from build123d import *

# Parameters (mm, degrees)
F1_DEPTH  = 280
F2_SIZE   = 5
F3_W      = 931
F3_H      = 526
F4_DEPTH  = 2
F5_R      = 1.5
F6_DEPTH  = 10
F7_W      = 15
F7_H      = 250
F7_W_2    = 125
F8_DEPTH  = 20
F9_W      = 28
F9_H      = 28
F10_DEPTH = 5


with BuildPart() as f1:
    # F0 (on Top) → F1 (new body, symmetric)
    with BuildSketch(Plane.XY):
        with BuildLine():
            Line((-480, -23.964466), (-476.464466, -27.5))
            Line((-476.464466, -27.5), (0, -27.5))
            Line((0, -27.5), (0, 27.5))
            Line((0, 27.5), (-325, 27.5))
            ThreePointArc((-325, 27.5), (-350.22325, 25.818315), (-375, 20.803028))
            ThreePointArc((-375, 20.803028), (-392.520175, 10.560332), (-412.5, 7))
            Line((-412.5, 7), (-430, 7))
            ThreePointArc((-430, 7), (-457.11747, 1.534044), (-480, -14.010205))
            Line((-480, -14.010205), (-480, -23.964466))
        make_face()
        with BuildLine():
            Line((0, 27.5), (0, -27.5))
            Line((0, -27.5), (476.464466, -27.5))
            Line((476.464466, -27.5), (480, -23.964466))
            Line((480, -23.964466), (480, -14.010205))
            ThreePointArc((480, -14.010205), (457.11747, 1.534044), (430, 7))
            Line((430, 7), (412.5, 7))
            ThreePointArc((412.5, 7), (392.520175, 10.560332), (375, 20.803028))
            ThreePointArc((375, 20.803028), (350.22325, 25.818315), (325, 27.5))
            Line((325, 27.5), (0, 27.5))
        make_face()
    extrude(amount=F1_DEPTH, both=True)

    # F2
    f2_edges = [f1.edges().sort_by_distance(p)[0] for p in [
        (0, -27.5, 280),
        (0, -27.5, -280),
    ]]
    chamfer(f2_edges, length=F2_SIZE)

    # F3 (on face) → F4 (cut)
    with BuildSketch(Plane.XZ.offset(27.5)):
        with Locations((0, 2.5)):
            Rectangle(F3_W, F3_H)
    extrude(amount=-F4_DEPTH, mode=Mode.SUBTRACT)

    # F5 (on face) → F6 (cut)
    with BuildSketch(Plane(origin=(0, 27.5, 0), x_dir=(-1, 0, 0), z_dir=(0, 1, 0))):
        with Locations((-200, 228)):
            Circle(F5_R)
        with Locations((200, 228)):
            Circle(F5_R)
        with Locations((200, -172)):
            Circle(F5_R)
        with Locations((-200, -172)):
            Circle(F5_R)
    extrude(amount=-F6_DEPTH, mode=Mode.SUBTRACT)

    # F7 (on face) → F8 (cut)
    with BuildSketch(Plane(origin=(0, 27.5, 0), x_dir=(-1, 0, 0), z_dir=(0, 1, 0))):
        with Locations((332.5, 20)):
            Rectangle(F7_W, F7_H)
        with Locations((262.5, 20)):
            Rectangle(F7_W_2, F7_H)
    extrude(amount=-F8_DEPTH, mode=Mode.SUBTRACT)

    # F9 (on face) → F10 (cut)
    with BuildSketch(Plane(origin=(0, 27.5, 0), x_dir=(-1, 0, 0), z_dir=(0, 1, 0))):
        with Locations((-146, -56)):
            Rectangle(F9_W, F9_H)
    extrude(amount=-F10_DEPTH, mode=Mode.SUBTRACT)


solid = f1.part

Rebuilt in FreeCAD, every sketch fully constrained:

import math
import FreeCAD as App
import Part
import Sketcher

V = App.Vector
Q = App.Units.Quantity


def edges_at(feature, points):
    """Names of the edges that pass closest to the given points."""
    edges = feature.Shape.Edges
    near = lambda p: min(range(len(edges)), key=lambda i: edges[i].distToShape(Part.Vertex(*p))[0])
    return sorted({f"Edge{near(p) + 1}" for p in points})

doc = App.newDocument("Part")
body = doc.addObject("PartDesign::Body", "Body")

# Sketch on XY plane
sketch1 = doc.addObject("Sketcher::SketchObject", "Sketch")
body.addObject(sketch1)
sketch1.AttachmentSupport = (doc.XY_Plane, [""])
sketch1.MapMode = "FlatFace"
sketch1.addGeometry(Part.LineSegment(V(-480, -23.964466, 0), V(-476.464466, -27.5, 0)), False)
sketch1.addGeometry(Part.LineSegment(V(-476.464466, -27.5, 0), V(476.464466, -27.5, 0)), False)
sketch1.addGeometry(Part.LineSegment(V(476.464466, -27.5, 0), V(480, -23.964466, 0)), False)
sketch1.addGeometry(Part.LineSegment(V(480, -23.964466, 0), V(480, -14.010205, 0)), False)
sketch1.addGeometry(Part.ArcOfCircle(Part.Circle(V(430, -62.999999, 0), V(0, 0, 1), 69.999999), math.radians(44.415309), math.radians(90)), False)
sketch1.addGeometry(Part.LineSegment(V(430, 7, 0), V(412.5, 7, 0)), False)
sketch1.addGeometry(Part.ArcOfCircle(Part.Circle(V(412.499999, 64.84142, 0), V(0, 0, 1), 57.84142), math.radians(-130.415381), math.radians(-89.999999)), False)
sketch1.addGeometry(Part.ArcOfCircle(Part.Circle(V(325.000003, -162.49998, 0), V(0, 0, 1), 189.99998), math.radians(74.742476), math.radians(90.000001)), False)
sketch1.addGeometry(Part.LineSegment(V(325, 27.5, 0), V(-325, 27.5, 0)), False)
sketch1.addGeometry(Part.ArcOfCircle(Part.Circle(V(-325.000003, -162.49998, 0), V(0, 0, 1), 189.99998), math.radians(89.999999), math.radians(105.257524)), False)
sketch1.addGeometry(Part.ArcOfCircle(Part.Circle(V(-412.499999, 64.84142, 0), V(0, 0, 1), 57.84142), math.radians(-90.000001), math.radians(-49.584619)), False)
sketch1.addGeometry(Part.LineSegment(V(-412.5, 7, 0), V(-430, 7, 0)), False)
sketch1.addGeometry(Part.ArcOfCircle(Part.Circle(V(-430, -62.999999, 0), V(0, 0, 1), 69.999999), math.radians(90), math.radians(135.584691)), False)
sketch1.addGeometry(Part.LineSegment(V(-480, -14.010205, 0), V(-480, -23.964466, 0)), False)
sketch1.addConstraint(Sketcher.Constraint("Coincident", 0, 2, 1, 1))
sketch1.addConstraint(Sketcher.Constraint("Coincident", 1, 2, 2, 1))
sketch1.addConstraint(Sketcher.Constraint("Coincident", 2, 2, 3, 1))
sketch1.addConstraint(Sketcher.Constraint("Coincident", 3, 2, 4, 1))
sketch1.addConstraint(Sketcher.Constraint("Tangent", 4, 2, 5, 1))
sketch1.addConstraint(Sketcher.Constraint("Tangent", 5, 2, 6, 2))
sketch1.addConstraint(Sketcher.Constraint("Coincident", 6, 1, 7, 1))
sketch1.addConstraint(Sketcher.Constraint("Tangent", 7, 2, 8, 1))
sketch1.addConstraint(Sketcher.Constraint("Tangent", 8, 2, 9, 1))
sketch1.addConstraint(Sketcher.Constraint("Coincident", 9, 2, 10, 2))
sketch1.addConstraint(Sketcher.Constraint("Tangent", 10, 1, 11, 1))
sketch1.addConstraint(Sketcher.Constraint("Tangent", 11, 2, 12, 1))
sketch1.addConstraint(Sketcher.Constraint("Coincident", 12, 2, 13, 1))
sketch1.addConstraint(Sketcher.Constraint("Coincident", 13, 2, 0, 1))
sketch1.addConstraint(Sketcher.Constraint("Horizontal", 1))
sketch1.addConstraint(Sketcher.Constraint("Vertical", 3))
sketch1.addConstraint(Sketcher.Constraint("Horizontal", 5))
sketch1.addConstraint(Sketcher.Constraint("Horizontal", 8))
sketch1.addConstraint(Sketcher.Constraint("Horizontal", 11))
sketch1.addConstraint(Sketcher.Constraint("Vertical", 13))
sketch1.addConstraint(Sketcher.Constraint("Equal", 7, 9))
sketch1.addConstraint(Sketcher.Constraint("Equal", 6, 10))
sketch1.addConstraint(Sketcher.Constraint("Equal", 4, 12))
sketch1.addConstraint(Sketcher.Constraint("Symmetric", 6, 3, 10, 3, -2))
sketch1.addConstraint(Sketcher.Constraint("Symmetric", 3, 2, 12, 2, -2))
sketch1.addConstraint(Sketcher.Constraint("Perpendicular", 0, 2))
sketch1.addConstraint(Sketcher.Constraint("Horizontal", 6, 1, 9, 2))
sketch1.addConstraint(Sketcher.Constraint("Horizontal", 2, 2, 13, 2))
sketch1.addConstraint(Sketcher.Constraint("Equal", 0, 2))
sketch1.addConstraint(Sketcher.Constraint("Radius", 4, Q("69.999999 mm")))
sketch1.addConstraint(Sketcher.Constraint("DistanceX", 8, 2, 8, 1, Q("650 mm")))
sketch1.addConstraint(Sketcher.Constraint("Distance", 0, Q("5 mm")))
sketch1.addConstraint(Sketcher.Constraint("DistanceX", 5, 2, 5, 1, Q("17.5 mm")))
sketch1.addConstraint(Sketcher.Constraint("DistanceX", -1, 1, 4, 3, Q("430 mm")))
sketch1.addConstraint(Sketcher.Constraint("DistanceY", 4, 3, -1, 1, Q("62.999999 mm")))
sketch1.addConstraint(Sketcher.Constraint("DistanceX", -1, 1, 2, 2, Q("480 mm")))
sketch1.addConstraint(Sketcher.Constraint("DistanceX", -1, 1, 6, 1, Q("375 mm")))
sketch1.addConstraint(Sketcher.Constraint("DistanceY", 0, 2, 8, 2, Q("55 mm")))
sketch1.addConstraint(Sketcher.Constraint("DistanceY", 0, 2, -1, 1, Q("27.5 mm")))
sketch1.addConstraint(Sketcher.Constraint("Radius", 6, Q("57.84142 mm")))
pad1 = doc.addObject("PartDesign::Pad", "Pad")
body.addObject(pad1)
pad1.Profile = sketch1
pad1.Length = 560
pad1.Midplane = True
doc.recompute()

chamfer = doc.addObject("PartDesign::Chamfer", "Chamfer")
body.addObject(chamfer)
chamfer.Base = (pad1, edges_at(pad1, [(0, -27.5, 280), (0, -27.5, -280)]))
chamfer.Size = 5

# Sketch on XZ plane
sketch2 = doc.addObject("Sketcher::SketchObject", "Sketch001")
body.addObject(sketch2)
sketch2.AttachmentSupport = (doc.XZ_Plane, [""])
sketch2.MapMode = "FlatFace"
sketch2.AttachmentOffset = App.Placement(V(0, 0, 27.5), App.Rotation())
sketch2.addGeometry(Part.LineSegment(V(-466, 266, 0), V(-466, -260, 0)), False)
sketch2.addGeometry(Part.LineSegment(V(-466, -260, 0), V(466, -260, 0)), False)
sketch2.addGeometry(Part.LineSegment(V(466, -260, 0), V(466, 266, 0)), False)
sketch2.addGeometry(Part.LineSegment(V(466, 266, 0), V(-466, 266, 0)), False)
sketch2.addConstraint(Sketcher.Constraint("Coincident", 0, 2, 1, 1))
sketch2.addConstraint(Sketcher.Constraint("Coincident", 1, 2, 2, 1))
sketch2.addConstraint(Sketcher.Constraint("Coincident", 2, 2, 3, 1))
sketch2.addConstraint(Sketcher.Constraint("Coincident", 3, 2, 0, 1))
sketch2.addConstraint(Sketcher.Constraint("Vertical", 0))
sketch2.addConstraint(Sketcher.Constraint("Horizontal", 1))
sketch2.addConstraint(Sketcher.Constraint("Vertical", 2))
sketch2.addConstraint(Sketcher.Constraint("Horizontal", 3))
sketch2.addConstraint(Sketcher.Constraint("DistanceX", 1, 1, 1, 2, Q("931 mm")))
sketch2.addConstraint(Sketcher.Constraint("DistanceY", 0, 2, 0, 1, Q("526 mm")))
sketch2.addConstraint(Sketcher.Constraint("DistanceX", 0, 2, -1, 1, Q("465.5 mm")))
sketch2.addConstraint(Sketcher.Constraint("DistanceY", 0, 2, -1, 1, Q("260.5 mm")))
pocket1 = doc.addObject("PartDesign::Pocket", "Pocket")
body.addObject(pocket1)
pocket1.Profile = sketch2
pocket1.Length = 2

# Sketch on XZ plane
sketch3 = doc.addObject("Sketcher::SketchObject", "Sketch002")
body.addObject(sketch3)
sketch3.AttachmentSupport = (doc.XZ_Plane, [""])
sketch3.MapMode = "FlatFace"
sketch3.AttachmentOffset = App.Placement(V(0, 0, -27.5), App.Rotation())
sketch3.addGeometry(Part.Circle(V(200, 228, 0), V(0, 0, 1), 1.5), False)
sketch3.addGeometry(Part.Circle(V(-200, 228, 0), V(0, 0, 1), 1.5), False)
sketch3.addGeometry(Part.Circle(V(-200, -172, 0), V(0, 0, 1), 1.5), False)
sketch3.addGeometry(Part.Circle(V(200, -172, 0), V(0, 0, 1), 1.5), False)
sketch3.addConstraint(Sketcher.Constraint("Equal", 0, 1))
sketch3.addConstraint(Sketcher.Constraint("Equal", 1, 2))
sketch3.addConstraint(Sketcher.Constraint("Equal", 2, 3))
sketch3.addConstraint(Sketcher.Constraint("Symmetric", 0, 3, 1, 3, -2))
sketch3.addConstraint(Sketcher.Constraint("Symmetric", 2, 3, 3, 3, -2))
sketch3.addConstraint(Sketcher.Constraint("Vertical", 1, 3, 2, 3))
sketch3.addConstraint(Sketcher.Constraint("Diameter", 0, Q("3 mm")))
sketch3.addConstraint(Sketcher.Constraint("DistanceX", -1, 1, 0, 3, Q("200 mm")))
sketch3.addConstraint(Sketcher.Constraint("DistanceY", -1, 1, 0, 3, Q("228 mm")))
sketch3.addConstraint(Sketcher.Constraint("DistanceY", 2, 3, -1, 1, Q("172 mm")))
pocket2 = doc.addObject("PartDesign::Pocket", "Pocket001")
body.addObject(pocket2)
pocket2.Profile = sketch3
pocket2.Length = 10
pocket2.Reversed = True

# Sketch on XZ plane
sketch4 = doc.addObject("Sketcher::SketchObject", "Sketch003")
body.addObject(sketch4)
sketch4.AttachmentSupport = (doc.XZ_Plane, [""])
sketch4.MapMode = "FlatFace"
sketch4.AttachmentOffset = App.Placement(V(0, 0, -27.5), App.Rotation())
sketch4.addGeometry(Part.LineSegment(V(-340, -105, 0), V(-340, 145, 0)), False)
sketch4.addGeometry(Part.LineSegment(V(-340, 145, 0), V(-200, 145, 0)), False)
sketch4.addGeometry(Part.LineSegment(V(-200, 145, 0), V(-200, -105, 0)), False)
sketch4.addGeometry(Part.LineSegment(V(-200, -105, 0), V(-340, -105, 0)), False)
sketch4.addConstraint(Sketcher.Constraint("Coincident", 0, 2, 1, 1))
sketch4.addConstraint(Sketcher.Constraint("Coincident", 1, 2, 2, 1))
sketch4.addConstraint(Sketcher.Constraint("Coincident", 2, 2, 3, 1))
sketch4.addConstraint(Sketcher.Constraint("Coincident", 3, 2, 0, 1))
sketch4.addConstraint(Sketcher.Constraint("Vertical", 0))
sketch4.addConstraint(Sketcher.Constraint("Horizontal", 1))
sketch4.addConstraint(Sketcher.Constraint("Vertical", 2))
sketch4.addConstraint(Sketcher.Constraint("Horizontal", 3))
sketch4.addConstraint(Sketcher.Constraint("DistanceX", 1, 1, 1, 2, Q("140 mm")))
sketch4.addConstraint(Sketcher.Constraint("DistanceY", 0, 1, 0, 2, Q("250 mm")))
sketch4.addConstraint(Sketcher.Constraint("DistanceX", 0, 2, -1, 1, Q("340 mm")))
sketch4.addConstraint(Sketcher.Constraint("DistanceY", -1, 1, 0, 2, Q("145 mm")))
pocket3 = doc.addObject("PartDesign::Pocket", "Pocket002")
body.addObject(pocket3)
pocket3.Profile = sketch4
pocket3.Length = 20
pocket3.Reversed = True

# Sketch on XZ plane
sketch5 = doc.addObject("Sketcher::SketchObject", "Sketch004")
body.addObject(sketch5)
sketch5.AttachmentSupport = (doc.XZ_Plane, [""])
sketch5.MapMode = "FlatFace"
sketch5.AttachmentOffset = App.Placement(V(0, 0, -27.5), App.Rotation())
sketch5.addGeometry(Part.LineSegment(V(160, -42, 0), V(160, -70, 0)), False)
sketch5.addGeometry(Part.LineSegment(V(160, -70, 0), V(132, -70, 0)), False)
sketch5.addGeometry(Part.LineSegment(V(132, -70, 0), V(132, -42, 0)), False)
sketch5.addGeometry(Part.LineSegment(V(132, -42, 0), V(160, -42, 0)), False)
sketch5.addConstraint(Sketcher.Constraint("Coincident", 0, 2, 1, 1))
sketch5.addConstraint(Sketcher.Constraint("Coincident", 1, 2, 2, 1))
sketch5.addConstraint(Sketcher.Constraint("Coincident", 2, 2, 3, 1))
sketch5.addConstraint(Sketcher.Constraint("Coincident", 3, 2, 0, 1))
sketch5.addConstraint(Sketcher.Constraint("Vertical", 0))
sketch5.addConstraint(Sketcher.Constraint("Horizontal", 1))
sketch5.addConstraint(Sketcher.Constraint("Vertical", 2))
sketch5.addConstraint(Sketcher.Constraint("Horizontal", 3))
sketch5.addConstraint(Sketcher.Constraint("Equal", 3, 0))
sketch5.addConstraint(Sketcher.Constraint("DistanceX", 1, 2, 1, 1, Q("28 mm")))
sketch5.addConstraint(Sketcher.Constraint("DistanceX", -1, 1, 0, 2, Q("160 mm")))
sketch5.addConstraint(Sketcher.Constraint("DistanceY", 0, 2, -1, 1, Q("70 mm")))
pocket4 = doc.addObject("PartDesign::Pocket", "Pocket003")
body.addObject(pocket4)
pocket4.Profile = sketch5
pocket4.Length = 5
pocket4.Reversed = True

doc.recompute()
